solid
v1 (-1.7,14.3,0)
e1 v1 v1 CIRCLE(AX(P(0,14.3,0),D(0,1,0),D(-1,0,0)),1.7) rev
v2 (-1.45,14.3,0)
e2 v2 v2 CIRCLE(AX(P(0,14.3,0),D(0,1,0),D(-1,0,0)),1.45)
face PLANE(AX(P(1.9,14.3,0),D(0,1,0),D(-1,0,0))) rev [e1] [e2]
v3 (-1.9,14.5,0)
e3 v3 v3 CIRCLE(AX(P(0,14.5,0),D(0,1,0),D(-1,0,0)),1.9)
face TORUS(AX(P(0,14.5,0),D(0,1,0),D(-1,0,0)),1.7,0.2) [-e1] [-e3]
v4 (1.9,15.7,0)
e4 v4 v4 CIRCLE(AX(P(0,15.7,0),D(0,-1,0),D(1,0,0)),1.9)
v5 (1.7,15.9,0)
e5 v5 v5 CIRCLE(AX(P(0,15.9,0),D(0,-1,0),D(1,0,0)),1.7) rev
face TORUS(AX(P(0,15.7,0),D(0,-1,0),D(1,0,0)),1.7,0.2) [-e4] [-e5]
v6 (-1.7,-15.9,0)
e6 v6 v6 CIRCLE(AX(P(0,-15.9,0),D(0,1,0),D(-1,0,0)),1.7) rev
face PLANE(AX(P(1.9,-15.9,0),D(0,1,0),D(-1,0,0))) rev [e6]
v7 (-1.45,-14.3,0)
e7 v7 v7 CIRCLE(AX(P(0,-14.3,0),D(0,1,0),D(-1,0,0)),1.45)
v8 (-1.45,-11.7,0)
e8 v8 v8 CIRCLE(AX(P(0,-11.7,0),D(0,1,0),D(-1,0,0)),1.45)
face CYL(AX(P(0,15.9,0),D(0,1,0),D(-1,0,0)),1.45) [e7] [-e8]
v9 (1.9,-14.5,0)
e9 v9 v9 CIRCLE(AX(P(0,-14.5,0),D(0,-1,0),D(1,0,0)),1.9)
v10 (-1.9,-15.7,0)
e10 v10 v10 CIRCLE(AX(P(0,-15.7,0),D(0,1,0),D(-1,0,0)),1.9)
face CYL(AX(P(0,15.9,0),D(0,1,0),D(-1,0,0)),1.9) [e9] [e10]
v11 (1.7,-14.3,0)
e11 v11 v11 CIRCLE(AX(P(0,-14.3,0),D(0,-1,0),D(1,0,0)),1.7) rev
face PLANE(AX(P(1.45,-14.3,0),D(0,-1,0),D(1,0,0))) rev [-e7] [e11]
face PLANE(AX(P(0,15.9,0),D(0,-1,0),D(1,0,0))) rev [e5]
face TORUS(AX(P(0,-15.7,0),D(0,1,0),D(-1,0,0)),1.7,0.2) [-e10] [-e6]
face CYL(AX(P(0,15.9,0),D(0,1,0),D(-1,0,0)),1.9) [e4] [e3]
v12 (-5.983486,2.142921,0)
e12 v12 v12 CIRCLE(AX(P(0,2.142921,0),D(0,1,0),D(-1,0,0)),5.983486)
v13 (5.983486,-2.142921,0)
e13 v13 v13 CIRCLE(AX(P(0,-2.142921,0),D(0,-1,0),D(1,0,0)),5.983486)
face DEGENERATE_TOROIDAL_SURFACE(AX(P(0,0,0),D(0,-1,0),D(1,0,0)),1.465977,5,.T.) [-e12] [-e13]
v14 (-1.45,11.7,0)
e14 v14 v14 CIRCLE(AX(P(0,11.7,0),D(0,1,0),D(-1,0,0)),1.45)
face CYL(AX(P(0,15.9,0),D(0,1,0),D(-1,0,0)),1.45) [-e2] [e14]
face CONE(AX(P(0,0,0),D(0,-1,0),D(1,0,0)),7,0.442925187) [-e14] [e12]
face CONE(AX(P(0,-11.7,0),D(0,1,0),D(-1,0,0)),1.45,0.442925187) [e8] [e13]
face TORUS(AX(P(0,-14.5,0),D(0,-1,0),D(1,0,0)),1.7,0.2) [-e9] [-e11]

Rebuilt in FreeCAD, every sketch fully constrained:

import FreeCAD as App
import Part
import Sketcher

V = App.Vector
Q = App.Units.Quantity


def edges_at(feature, points):
    """Names of the edges that pass closest to the given points."""
    edges = feature.Shape.Edges
    near = lambda p: min(range(len(edges)), key=lambda i: edges[i].distToShape(Part.Vertex(*p))[0])
    return sorted({f"Edge{near(p) + 1}" for p in points})

doc = App.newDocument("Part")
body = doc.addObject("PartDesign::Body", "Body")

sketch1 = body.newObject("Sketcher::SketchObject", "Sketch")
sketch1.AttachmentSupport = (doc.getObject("XY_Plane"), [""])
sketch1.MapMode = "FlatFace"
sketch1.addGeometry([
    Part.LineSegment(V(0, 15.9, 0), V(0, -15.9, 0)),
    Part.LineSegment(V(0, -15.9, 0), V(1.9, -15.9, 0)),
    Part.LineSegment(V(1.9, -15.9, 0), V(1.9, -14.3, 0)),
    Part.LineSegment(V(1.9, -14.3, 0), V(1.45, -14.3, 0)),
    Part.LineSegment(V(1.45, -14.3, 0), V(1.45, -11.7, 0)),
    Part.LineSegment(V(1.45, -11.7, 0), V(7, 0, 0)),
    Part.LineSegment(V(7, 0, 0), V(1.45, 11.7, 0)),
    Part.LineSegment(V(1.45, 11.7, 0), V(1.45, 14.3, 0)),
    Part.LineSegment(V(1.45, 14.3, 0), V(1.9, 14.3, 0)),
    Part.LineSegment(V(1.9, 14.3, 0), V(1.9, 15.9, 0)),
    Part.LineSegment(V(1.9, 15.9, 0), V(0, 15.9, 0)),
], False)
sketch1.addConstraint([
    Sketcher.Constraint("Coincident", 0, 2, 1, 1),
    Sketcher.Constraint("Coincident", 1, 2, 2, 1),
    Sketcher.Constraint("Coincident", 2, 2, 3, 1),
    Sketcher.Constraint("Coincident", 3, 2, 4, 1),
    Sketcher.Constraint("Coincident", 4, 2, 5, 1),
    Sketcher.Constraint("Coincident", 5, 2, 6, 1),
    Sketcher.Constraint("Coincident", 6, 2, 7, 1),
    Sketcher.Constraint("Coincident", 7, 2, 8, 1),
    Sketcher.Constraint("Coincident", 8, 2, 9, 1),
    Sketcher.Constraint("Coincident", 9, 2, 10, 1),
    Sketcher.Constraint("Coincident", 10, 2, 0, 1),
    Sketcher.Constraint("Vertical", 0),
    Sketcher.Constraint("Horizontal", 1),
    Sketcher.Constraint("Vertical", 2),
    Sketcher.Constraint("Horizontal", 3),
    Sketcher.Constraint("Vertical", 4),
    Sketcher.Constraint("Vertical", 7),
    Sketcher.Constraint("Horizontal", 8),
    Sketcher.Constraint("Vertical", 9),
    Sketcher.Constraint("Horizontal", 10),
    Sketcher.Constraint("Symmetric", 0, 2, 10, 2, -1, 1),
    Sketcher.Constraint("Symmetric", 4, 2, 6, 2, -1),
    Sketcher.Constraint("Symmetric", 2, 2, 8, 2, -1),
    Sketcher.Constraint("PointOnObject", 5, 2, -1),
    Sketcher.Constraint("DistanceX", 1, 1, 1, 2, Q("1.9 mm")),
    Sketcher.Constraint("DistanceY", 0, 2, 0, 1, Q("31.8 mm")),
    Sketcher.Constraint("DistanceY", 2, 1, 2, 2, Q("1.6 mm")),
    Sketcher.Constraint("DistanceY", 4, 1, 4, 2, Q("2.6 mm")),
    Sketcher.Constraint("DistanceX", -1, 1, 5, 2, Q("7 mm")),
    Sketcher.Constraint("DistanceX", 3, 2, 3, 1, Q("0.45 mm")),
])
revolution = body.newObject("PartDesign::Revolution", "Revolution")
revolution.Profile = sketch1
revolution.ReferenceAxis = (sketch1, ["V_Axis"])
revolution.Angle = 360
doc.recompute()

fillet = body.newObject("PartDesign::Fillet", "Fillet")
fillet.Base = (revolution, edges_at(revolution, [(7, 0, 0)]))
fillet.Radius = 5
doc.recompute()

fillet2 = body.newObject("PartDesign::Fillet", "Fillet001")
fillet2.Base = (fillet, edges_at(fillet, [
    (1.9, -14.3, 0),
    (1.9, 14.3, 0),
    (1.9, 15.9, 0),
    (1.9, -15.9, 0),
]))
fillet2.Radius = 0.2

doc.recompute()
